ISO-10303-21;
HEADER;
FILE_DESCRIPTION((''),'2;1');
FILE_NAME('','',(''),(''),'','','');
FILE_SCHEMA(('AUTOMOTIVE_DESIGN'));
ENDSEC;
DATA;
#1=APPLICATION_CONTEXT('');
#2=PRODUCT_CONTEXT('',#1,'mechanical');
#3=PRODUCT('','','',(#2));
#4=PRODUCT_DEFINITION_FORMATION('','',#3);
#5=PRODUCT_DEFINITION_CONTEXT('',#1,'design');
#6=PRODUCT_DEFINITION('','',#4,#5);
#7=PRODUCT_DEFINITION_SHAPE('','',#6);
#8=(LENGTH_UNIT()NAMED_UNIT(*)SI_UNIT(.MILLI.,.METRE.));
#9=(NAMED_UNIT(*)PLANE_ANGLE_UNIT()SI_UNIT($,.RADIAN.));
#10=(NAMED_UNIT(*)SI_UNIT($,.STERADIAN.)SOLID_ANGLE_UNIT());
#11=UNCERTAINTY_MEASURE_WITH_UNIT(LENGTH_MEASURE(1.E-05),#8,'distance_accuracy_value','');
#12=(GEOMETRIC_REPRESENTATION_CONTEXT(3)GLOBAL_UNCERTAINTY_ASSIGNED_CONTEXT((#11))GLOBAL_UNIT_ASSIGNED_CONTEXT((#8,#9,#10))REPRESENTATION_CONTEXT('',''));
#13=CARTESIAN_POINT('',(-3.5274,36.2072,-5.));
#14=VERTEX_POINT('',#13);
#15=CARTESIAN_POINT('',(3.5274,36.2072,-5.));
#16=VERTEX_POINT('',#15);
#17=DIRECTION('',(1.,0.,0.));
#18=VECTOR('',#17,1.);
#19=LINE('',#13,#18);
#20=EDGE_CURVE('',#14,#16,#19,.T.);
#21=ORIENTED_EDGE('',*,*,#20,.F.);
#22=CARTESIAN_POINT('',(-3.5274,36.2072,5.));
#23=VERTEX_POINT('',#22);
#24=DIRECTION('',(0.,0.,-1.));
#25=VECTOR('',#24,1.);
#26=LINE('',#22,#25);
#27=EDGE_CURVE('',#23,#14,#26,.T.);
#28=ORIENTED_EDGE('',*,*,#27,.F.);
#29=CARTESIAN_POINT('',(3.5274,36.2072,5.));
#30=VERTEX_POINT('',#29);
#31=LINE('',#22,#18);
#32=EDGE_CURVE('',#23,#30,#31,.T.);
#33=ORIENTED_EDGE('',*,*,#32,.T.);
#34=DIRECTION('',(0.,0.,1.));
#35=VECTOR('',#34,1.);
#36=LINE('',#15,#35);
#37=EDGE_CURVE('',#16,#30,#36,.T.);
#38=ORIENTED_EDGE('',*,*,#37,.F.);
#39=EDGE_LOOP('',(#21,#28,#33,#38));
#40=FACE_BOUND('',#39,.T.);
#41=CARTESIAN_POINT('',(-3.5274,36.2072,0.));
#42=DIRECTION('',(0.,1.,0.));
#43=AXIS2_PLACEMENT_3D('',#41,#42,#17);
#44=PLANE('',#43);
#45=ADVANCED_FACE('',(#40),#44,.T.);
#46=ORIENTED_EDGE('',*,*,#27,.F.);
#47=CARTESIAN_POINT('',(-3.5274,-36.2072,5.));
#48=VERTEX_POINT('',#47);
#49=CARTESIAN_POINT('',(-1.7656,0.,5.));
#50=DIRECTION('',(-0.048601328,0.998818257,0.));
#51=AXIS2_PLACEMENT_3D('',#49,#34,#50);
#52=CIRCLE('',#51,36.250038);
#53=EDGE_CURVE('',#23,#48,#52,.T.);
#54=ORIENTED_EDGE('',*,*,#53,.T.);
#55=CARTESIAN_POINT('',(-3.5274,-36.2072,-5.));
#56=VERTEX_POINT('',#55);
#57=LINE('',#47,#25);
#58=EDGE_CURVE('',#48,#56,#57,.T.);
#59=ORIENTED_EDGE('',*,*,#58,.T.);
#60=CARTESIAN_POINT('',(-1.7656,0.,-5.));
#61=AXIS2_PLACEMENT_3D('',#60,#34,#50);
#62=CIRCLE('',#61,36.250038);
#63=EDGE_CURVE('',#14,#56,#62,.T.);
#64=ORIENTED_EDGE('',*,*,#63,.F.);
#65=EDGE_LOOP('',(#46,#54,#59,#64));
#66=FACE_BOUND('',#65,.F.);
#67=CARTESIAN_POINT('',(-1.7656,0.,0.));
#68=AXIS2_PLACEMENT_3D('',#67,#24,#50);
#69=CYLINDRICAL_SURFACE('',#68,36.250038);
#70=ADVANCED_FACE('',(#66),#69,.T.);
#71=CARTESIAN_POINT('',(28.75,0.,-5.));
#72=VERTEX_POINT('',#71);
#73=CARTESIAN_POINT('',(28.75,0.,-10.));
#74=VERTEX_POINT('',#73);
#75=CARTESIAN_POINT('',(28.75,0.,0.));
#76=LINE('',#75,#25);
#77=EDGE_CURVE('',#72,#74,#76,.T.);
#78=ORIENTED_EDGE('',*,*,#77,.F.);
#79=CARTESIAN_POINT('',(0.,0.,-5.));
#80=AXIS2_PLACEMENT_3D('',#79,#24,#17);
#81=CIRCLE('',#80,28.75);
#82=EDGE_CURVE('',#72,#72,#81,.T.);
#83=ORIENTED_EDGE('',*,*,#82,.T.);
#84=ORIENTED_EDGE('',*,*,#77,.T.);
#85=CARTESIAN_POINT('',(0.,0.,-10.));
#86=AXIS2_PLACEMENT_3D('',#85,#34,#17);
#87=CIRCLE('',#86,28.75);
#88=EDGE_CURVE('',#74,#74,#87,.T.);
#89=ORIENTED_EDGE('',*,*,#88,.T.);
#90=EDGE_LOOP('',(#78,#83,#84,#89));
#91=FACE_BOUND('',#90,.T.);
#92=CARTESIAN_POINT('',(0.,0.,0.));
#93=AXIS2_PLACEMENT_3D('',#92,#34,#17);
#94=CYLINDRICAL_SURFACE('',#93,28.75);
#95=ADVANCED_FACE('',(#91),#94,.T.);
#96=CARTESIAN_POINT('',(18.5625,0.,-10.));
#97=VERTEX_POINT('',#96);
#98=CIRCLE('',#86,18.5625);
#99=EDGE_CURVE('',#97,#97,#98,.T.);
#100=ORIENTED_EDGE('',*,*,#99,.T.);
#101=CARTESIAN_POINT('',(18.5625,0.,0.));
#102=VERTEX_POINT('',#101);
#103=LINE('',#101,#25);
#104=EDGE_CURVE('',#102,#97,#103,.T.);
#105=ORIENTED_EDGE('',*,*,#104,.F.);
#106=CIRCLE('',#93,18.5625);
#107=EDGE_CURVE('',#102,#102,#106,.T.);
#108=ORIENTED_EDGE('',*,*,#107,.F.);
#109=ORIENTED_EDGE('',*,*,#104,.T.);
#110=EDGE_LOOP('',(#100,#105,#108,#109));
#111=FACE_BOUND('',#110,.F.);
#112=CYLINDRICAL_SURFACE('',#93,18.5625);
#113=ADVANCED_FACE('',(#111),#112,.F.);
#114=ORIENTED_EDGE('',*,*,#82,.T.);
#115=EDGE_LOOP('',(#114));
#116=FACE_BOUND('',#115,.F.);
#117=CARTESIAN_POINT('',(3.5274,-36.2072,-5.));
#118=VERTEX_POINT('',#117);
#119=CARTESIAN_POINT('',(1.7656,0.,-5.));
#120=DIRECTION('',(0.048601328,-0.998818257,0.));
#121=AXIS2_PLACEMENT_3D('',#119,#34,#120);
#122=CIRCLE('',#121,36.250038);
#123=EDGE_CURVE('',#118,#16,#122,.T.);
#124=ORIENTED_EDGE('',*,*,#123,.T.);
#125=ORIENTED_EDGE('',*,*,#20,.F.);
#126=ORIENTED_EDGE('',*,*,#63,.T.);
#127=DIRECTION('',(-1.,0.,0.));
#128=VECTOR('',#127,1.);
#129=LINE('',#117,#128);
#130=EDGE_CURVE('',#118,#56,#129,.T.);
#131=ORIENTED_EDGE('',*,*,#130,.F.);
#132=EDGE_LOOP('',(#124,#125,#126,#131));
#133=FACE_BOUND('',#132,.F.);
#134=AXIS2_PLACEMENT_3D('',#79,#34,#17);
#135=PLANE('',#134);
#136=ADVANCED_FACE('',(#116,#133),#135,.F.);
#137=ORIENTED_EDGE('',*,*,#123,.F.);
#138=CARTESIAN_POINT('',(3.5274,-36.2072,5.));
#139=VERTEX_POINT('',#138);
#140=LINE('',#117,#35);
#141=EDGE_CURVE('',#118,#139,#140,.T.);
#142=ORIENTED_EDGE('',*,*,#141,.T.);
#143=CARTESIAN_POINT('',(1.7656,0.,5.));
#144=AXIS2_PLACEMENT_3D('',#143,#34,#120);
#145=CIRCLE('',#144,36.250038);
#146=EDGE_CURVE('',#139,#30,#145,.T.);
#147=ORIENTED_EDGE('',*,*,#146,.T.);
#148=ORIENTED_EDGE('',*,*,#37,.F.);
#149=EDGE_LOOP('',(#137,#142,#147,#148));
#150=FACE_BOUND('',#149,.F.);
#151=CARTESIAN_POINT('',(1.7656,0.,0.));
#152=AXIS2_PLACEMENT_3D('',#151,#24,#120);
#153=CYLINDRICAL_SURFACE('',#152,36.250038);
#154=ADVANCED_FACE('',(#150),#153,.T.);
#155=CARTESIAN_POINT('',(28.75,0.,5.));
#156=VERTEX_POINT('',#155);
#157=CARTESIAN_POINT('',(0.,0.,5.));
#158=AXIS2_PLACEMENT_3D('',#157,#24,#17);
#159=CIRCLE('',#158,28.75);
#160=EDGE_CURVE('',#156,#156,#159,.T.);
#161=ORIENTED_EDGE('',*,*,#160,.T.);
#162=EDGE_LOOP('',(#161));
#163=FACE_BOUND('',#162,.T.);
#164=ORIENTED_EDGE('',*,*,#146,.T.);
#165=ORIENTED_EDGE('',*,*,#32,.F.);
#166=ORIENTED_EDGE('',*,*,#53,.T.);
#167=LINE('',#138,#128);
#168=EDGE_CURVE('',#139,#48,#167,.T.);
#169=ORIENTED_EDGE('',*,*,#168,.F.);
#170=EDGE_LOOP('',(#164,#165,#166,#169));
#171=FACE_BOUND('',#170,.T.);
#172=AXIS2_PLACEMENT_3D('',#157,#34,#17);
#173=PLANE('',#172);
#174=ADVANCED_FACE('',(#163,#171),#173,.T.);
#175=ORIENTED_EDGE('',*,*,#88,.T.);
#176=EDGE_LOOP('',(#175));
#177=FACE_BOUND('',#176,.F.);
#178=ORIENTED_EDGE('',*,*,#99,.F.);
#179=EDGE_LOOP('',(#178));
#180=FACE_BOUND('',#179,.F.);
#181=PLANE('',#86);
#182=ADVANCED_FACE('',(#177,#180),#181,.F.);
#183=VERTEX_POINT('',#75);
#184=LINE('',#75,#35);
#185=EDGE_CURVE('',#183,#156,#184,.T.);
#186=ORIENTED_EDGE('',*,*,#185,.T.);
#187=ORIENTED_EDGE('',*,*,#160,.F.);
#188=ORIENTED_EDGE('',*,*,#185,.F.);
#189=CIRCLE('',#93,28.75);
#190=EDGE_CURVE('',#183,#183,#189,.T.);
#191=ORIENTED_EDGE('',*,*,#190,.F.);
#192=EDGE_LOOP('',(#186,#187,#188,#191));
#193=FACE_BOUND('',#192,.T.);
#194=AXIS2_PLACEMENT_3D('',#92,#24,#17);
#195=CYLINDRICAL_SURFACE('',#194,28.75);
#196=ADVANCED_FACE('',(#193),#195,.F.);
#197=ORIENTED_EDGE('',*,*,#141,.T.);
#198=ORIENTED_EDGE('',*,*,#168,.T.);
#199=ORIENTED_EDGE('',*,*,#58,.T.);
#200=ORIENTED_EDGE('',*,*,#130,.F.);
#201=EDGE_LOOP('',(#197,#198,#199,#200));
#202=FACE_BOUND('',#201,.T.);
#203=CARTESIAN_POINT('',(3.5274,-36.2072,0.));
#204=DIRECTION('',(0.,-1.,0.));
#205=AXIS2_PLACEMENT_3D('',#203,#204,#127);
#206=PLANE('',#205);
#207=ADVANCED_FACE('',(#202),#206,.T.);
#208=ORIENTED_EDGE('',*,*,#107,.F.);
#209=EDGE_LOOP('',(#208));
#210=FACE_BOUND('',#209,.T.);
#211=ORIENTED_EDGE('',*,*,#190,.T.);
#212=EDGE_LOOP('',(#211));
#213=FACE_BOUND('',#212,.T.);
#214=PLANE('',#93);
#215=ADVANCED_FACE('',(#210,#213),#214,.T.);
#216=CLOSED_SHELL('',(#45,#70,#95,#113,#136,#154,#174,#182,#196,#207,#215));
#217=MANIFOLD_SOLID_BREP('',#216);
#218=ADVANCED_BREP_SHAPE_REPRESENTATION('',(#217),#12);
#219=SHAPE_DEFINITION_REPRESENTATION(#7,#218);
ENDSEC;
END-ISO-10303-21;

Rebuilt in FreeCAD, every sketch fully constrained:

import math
import FreeCAD as App
import Part
import Sketcher
from FreeCAD import Vector

doc = App.newDocument("Part")
params = doc.addObject("Spreadsheet::Sheet", "Params")
for row, (alias, value) in enumerate([
    ("sketch1_diameter", "57.5 mm"),
    ("sketch1_radius", "36.25 mm"),
    ("pad1_length", "10 mm"),
    ("sketch2_diameter", "57.5 mm"),
    ("pad2_length", "10 mm"),
], start=1):
    params.set(f"A{row}", alias)
    params.set(f"B{row}", "=" + value)
    params.setAlias(f"B{row}", alias)

body = doc.addObject("PartDesign::Body", "Body")

# Sketch on XY plane
sketch1 = body.newObject("Sketcher::SketchObject", "Sketch")
sketch1.AttachmentSupport = (doc.getObject("XY_Plane"), [""])
sketch1.MapMode = "FlatFace"
sketch1.addGeometry([
    Part.LineSegment(Vector(-4, -36, 0), Vector(4, -36, 0)),  # 0
    Part.ArcOfCircle(Part.Circle(Vector(2, 0, 0), Vector(0, 0, 1), 36), math.radians(-87), math.radians(87)),  # 1
    Part.LineSegment(Vector(4, 36, 0), Vector(-4, 36, 0)),  # 2
    Part.ArcOfCircle(Part.Circle(Vector(-2, 0, 0), Vector(0, 0, 1), 36), math.radians(93), math.radians(267)),  # 3
    Part.Circle(Vector(0, 0, 0), Vector(0, 0, 1), 29),  # 4
], False)
sketch1.addConstraint([
    Sketcher.Constraint("Coincident", 0, 2, 1, 1),
    Sketcher.Constraint("Coincident", 1, 2, 2, 1),
    Sketcher.Constraint("Coincident", 2, 2, 3, 1),
    Sketcher.Constraint("Coincident", 3, 2, 0, 1),
    Sketcher.Constraint("Horizontal", 0),
    Sketcher.Constraint("Horizontal", 2),
    Sketcher.Constraint("Coincident", 4, 3, -1, 1),
    Sketcher.Constraint("Equal", 1, 3),
    Sketcher.Constraint("Symmetric", 1, 3, 3, 3, -1, 1),
    Sketcher.Constraint("Symmetric", 0, 2, 1, 2, -1),
    Sketcher.Constraint("Diameter", 4, 57.5),
    Sketcher.Constraint("Radius", 1, 36.25),
    Sketcher.Constraint("DistanceX", 0, 1, 0, 2, 7.0548),
    Sketcher.Constraint("DistanceX", 3, 3, 0, 2, 5.293),
])
sketch1.setExpression("Constraints[10]", "Params.sketch1_diameter")
sketch1.setExpression("Constraints[11]", "Params.sketch1_radius")
pad1 = body.newObject("PartDesign::Pad", "Pad")
pad1.Profile = sketch1
pad1.setExpression("Length", "Params.pad1_length")
pad1.Midplane = True

# Sketch on XY plane
sketch2 = body.newObject("Sketcher::SketchObject", "Sketch001")
sketch2.AttachmentSupport = (doc.getObject("XY_Plane"), [""])
sketch2.MapMode = "FlatFace"
sketch2.addGeometry([
    Part.Circle(Vector(0, 0, 0), Vector(0, 0, 1), 29),
    Part.Circle(Vector(0, 0, 0), Vector(0, 0, 1), 19),
], False)
sketch2.addConstraint([
    Sketcher.Constraint("Coincident", 0, 3, -1, 1),
    Sketcher.Constraint("Coincident", 1, 3, -1, 1),
    Sketcher.Constraint("Diameter", 1, 37.125),
    Sketcher.Constraint("Diameter", 0, 57.5),
])
sketch2.setExpression("Constraints[3]", "Params.sketch2_diameter")
pad2 = body.newObject("PartDesign::Pad", "Pad001")
pad2.Profile = sketch2
pad2.setExpression("Length", "Params.pad2_length")
pad2.Reversed = True

doc.recompute()
